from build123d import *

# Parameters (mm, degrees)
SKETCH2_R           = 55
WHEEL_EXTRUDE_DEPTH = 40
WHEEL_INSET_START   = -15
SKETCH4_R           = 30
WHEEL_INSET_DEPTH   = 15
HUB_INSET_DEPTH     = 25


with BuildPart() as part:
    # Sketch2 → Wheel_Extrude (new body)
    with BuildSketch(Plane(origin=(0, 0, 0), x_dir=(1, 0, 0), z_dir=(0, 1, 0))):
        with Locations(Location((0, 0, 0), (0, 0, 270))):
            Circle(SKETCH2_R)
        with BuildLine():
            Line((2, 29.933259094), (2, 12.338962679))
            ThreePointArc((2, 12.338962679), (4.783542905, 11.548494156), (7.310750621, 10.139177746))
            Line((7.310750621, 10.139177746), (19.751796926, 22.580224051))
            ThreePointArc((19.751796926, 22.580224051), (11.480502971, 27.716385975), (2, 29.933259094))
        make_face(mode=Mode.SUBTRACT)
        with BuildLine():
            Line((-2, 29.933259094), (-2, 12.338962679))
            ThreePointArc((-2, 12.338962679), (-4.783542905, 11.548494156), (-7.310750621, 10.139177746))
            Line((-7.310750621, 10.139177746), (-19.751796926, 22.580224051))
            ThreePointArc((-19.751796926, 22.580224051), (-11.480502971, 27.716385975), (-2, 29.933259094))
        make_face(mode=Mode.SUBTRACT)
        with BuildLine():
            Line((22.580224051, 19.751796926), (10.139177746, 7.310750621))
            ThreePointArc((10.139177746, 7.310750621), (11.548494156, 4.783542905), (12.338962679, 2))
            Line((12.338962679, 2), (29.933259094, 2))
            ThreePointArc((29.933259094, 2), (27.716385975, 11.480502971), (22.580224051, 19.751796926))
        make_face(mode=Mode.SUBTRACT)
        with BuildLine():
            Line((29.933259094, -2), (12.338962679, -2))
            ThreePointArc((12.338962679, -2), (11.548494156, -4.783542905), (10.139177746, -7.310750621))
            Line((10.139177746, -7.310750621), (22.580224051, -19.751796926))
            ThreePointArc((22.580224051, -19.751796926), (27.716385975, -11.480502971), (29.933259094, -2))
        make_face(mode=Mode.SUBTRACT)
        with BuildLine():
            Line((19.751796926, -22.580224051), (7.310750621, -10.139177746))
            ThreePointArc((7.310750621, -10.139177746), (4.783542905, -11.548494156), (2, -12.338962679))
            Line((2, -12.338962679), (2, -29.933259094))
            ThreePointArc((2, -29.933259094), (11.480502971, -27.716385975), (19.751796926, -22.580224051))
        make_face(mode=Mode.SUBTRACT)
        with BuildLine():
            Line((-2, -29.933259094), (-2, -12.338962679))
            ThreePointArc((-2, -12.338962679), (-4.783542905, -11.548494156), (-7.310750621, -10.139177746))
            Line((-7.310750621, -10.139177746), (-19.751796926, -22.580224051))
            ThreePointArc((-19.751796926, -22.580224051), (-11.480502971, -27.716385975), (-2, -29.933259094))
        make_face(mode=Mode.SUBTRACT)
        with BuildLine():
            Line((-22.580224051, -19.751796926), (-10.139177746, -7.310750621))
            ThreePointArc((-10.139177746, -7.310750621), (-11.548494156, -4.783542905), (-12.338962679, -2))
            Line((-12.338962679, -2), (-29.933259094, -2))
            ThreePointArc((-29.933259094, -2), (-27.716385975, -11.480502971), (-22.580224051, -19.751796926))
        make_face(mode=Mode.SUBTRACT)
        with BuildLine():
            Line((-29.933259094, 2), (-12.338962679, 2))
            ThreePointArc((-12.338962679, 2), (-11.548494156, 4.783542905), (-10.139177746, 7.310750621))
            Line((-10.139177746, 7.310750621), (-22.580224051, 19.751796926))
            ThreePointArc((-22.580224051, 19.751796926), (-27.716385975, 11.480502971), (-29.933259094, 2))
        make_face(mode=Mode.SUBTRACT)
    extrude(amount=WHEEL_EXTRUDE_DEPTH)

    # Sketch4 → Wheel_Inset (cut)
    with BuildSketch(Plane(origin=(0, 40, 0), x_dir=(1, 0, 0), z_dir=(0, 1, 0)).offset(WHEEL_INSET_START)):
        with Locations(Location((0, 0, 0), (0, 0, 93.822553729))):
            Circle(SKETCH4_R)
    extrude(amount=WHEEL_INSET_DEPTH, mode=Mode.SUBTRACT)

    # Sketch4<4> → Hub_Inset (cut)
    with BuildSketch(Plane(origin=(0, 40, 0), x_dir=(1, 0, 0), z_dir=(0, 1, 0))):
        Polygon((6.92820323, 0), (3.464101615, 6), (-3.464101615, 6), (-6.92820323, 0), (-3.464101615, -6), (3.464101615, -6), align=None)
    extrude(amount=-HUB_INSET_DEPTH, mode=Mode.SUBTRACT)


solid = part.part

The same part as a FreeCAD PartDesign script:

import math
import FreeCAD as App
import Part
import Sketcher

V = App.Vector
Q = App.Units.Quantity

doc = App.newDocument("Part")
body = doc.addObject("PartDesign::Body", "Body")

sketch1 = body.newObject("Sketcher::SketchObject", "Sketch")
sketch1.AttachmentSupport = (doc.getObject("XZ_Plane"), [""])
sketch1.MapMode = "FlatFace"
sketch1.addGeometry([
    Part.Circle(V(0, 0, 0), V(0, 0, 1), 55),
    Part.LineSegment(V(-12.338963, -2, 0), V(-29.933259, -2, 0)),
    Part.ArcOfCircle(Part.Circle(V(0, 0, 0), V(0, 0, 1), 30), math.radians(-176.177446), math.radians(-138.822554)),
    Part.LineSegment(V(-22.580224, -19.751797, 0), V(-10.139178, -7.310751, 0)),
    Part.ArcOfCircle(Part.Circle(V(0, 0, 0), V(0, 0, 1), 12.5), math.radians(-170.793104), math.radians(-144.206896)),
    Part.ArcOfCircle(Part.Circle(V(0, 0, 0), V(0, 0, 1), 30), math.radians(-131.177446), math.radians(-93.822554)),
    Part.LineSegment(V(-2, -29.933259, 0), V(-2, -12.338963, 0)),
    Part.ArcOfCircle(Part.Circle(V(0, 0, 0), V(0, 0, 1), 12.5), math.radians(-125.793104), math.radians(-99.206896)),
    Part.LineSegment(V(-7.310751, -10.139178, 0), V(-19.751797, -22.580224, 0)),
    Part.LineSegment(V(-10.139178, 7.310751, 0), V(-22.580224, 19.751797, 0)),
    Part.ArcOfCircle(Part.Circle(V(0, 0, 0), V(0, 0, 1), 30), math.radians(138.822554), math.radians(176.177446)),
    Part.LineSegment(V(-29.933259, 2, 0), V(-12.338963, 2, 0)),
    Part.ArcOfCircle(Part.Circle(V(0, 0, 0), V(0, 0, 1), 12.5), math.radians(144.206896), math.radians(170.793104)),
    Part.LineSegment(V(-2, 12.338963, 0), V(-2, 29.933259, 0)),
    Part.ArcOfCircle(Part.Circle(V(0, 0, 0), V(0, 0, 1), 30), math.radians(93.822554), math.radians(131.177446)),
    Part.LineSegment(V(-19.751797, 22.580224, 0), V(-7.310751, 10.139178, 0)),
    Part.ArcOfCircle(Part.Circle(V(0, 0, 0), V(0, 0, 1), 12.5), math.radians(99.206896), math.radians(125.793104)),
    Part.LineSegment(V(2, -12.338963, 0), V(2, -29.933259, 0)),
    Part.ArcOfCircle(Part.Circle(V(0, 0, 0), V(0, 0, 1), 30), math.radians(-86.177446), math.radians(-48.822554)),
    Part.LineSegment(V(19.751797, -22.580224, 0), V(7.310751, -10.139178, 0)),
    Part.ArcOfCircle(Part.Circle(V(0, 0, 0), V(0, 0, 1), 12.5), math.radians(-80.793104), math.radians(-54.206896)),
    Part.LineSegment(V(10.139178, -7.310751, 0), V(22.580224, -19.751797, 0)),
    Part.ArcOfCircle(Part.Circle(V(0, 0, 0), V(0, 0, 1), 30), math.radians(-41.177446), math.radians(-3.822554)),
    Part.LineSegment(V(29.933259, -2, 0), V(12.338963, -2, 0)),
    Part.ArcOfCircle(Part.Circle(V(0, 0, 0), V(0, 0, 1), 12.5), math.radians(-35.793104), math.radians(-9.206896)),
    Part.LineSegment(V(7.310751, 10.139178, 0), V(19.751797, 22.580224, 0)),
    Part.ArcOfCircle(Part.Circle(V(0, 0, 0), V(0, 0, 1), 30), math.radians(48.822554), math.radians(86.177446)),
    Part.LineSegment(V(2, 29.933259, 0), V(2, 12.338963, 0)),
    Part.ArcOfCircle(Part.Circle(V(0, 0, 0), V(0, 0, 1), 12.5), math.radians(54.206896), math.radians(80.793104)),
    Part.LineSegment(V(12.338963, 2, 0), V(29.933259, 2, 0)),
    Part.ArcOfCircle(Part.Circle(V(0, 0, 0), V(0, 0, 1), 30), math.radians(3.822554), math.radians(41.177446)),
    Part.LineSegment(V(22.580224, 19.751797, 0), V(10.139178, 7.310751, 0)),
    Part.ArcOfCircle(Part.Circle(V(0, 0, 0), V(0, 0, 1), 12.5), math.radians(9.206896), math.radians(35.793104)),
], False)
sketch1.addConstraint([
    Sketcher.Constraint("Coincident", 1, 2, 2, 1),
    Sketcher.Constraint("Coincident", 2, 2, 3, 1),
    Sketcher.Constraint("Coincident", 3, 2, 4, 2),
    Sketcher.Constraint("Coincident", 4, 1, 1, 1),
    Sketcher.Constraint("Coincident", 5, 2, 6, 1),
    Sketcher.Constraint("Coincident", 6, 2, 7, 2),
    Sketcher.Constraint("Coincident", 7, 1, 8, 1),
    Sketcher.Constraint("Coincident", 8, 2, 5, 1),
    Sketcher.Constraint("Coincident", 9, 2, 10, 1),
    Sketcher.Constraint("Coincident", 10, 2, 11, 1),
    Sketcher.Constraint("Coincident", 11, 2, 12, 2),
    Sketcher.Constraint("Coincident", 12, 1, 9, 1),
    Sketcher.Constraint("Coincident", 13, 2, 14, 1),
    Sketcher.Constraint("Coincident", 14, 2, 15, 1),
    Sketcher.Constraint("Coincident", 15, 2, 16, 2),
    Sketcher.Constraint("Coincident", 16, 1, 13, 1),
    Sketcher.Constraint("Coincident", 17, 2, 18, 1),
    Sketcher.Constraint("Coincident", 18, 2, 19, 1),
    Sketcher.Constraint("Coincident", 19, 2, 20, 2),
    Sketcher.Constraint("Coincident", 20, 1, 17, 1),
    Sketcher.Constraint("Coincident", 21, 2, 22, 1),
    Sketcher.Constraint("Coincident", 22, 2, 23, 1),
    Sketcher.Constraint("Coincident", 23, 2, 24, 2),
    Sketcher.Constraint("Coincident", 24, 1, 21, 1),
    Sketcher.Constraint("Coincident", 25, 2, 26, 1),
    Sketcher.Constraint("Coincident", 26, 2, 27, 1),
    Sketcher.Constraint("Coincident", 27, 2, 28, 2),
    Sketcher.Constraint("Coincident", 28, 1, 25, 1),
    Sketcher.Constraint("Coincident", 29, 2, 30, 1),
    Sketcher.Constraint("Coincident", 30, 2, 31, 1),
    Sketcher.Constraint("Coincident", 31, 2, 32, 2),
    Sketcher.Constraint("Coincident", 32, 1, 29, 1),
    Sketcher.Constraint("Horizontal", 1),
    Sketcher.Constraint("Vertical", 6),
    Sketcher.Constraint("Horizontal", 11),
    Sketcher.Constraint("Vertical", 13),
    Sketcher.Constraint("Vertical", 17),
    Sketcher.Constraint("Horizontal", 23),
    Sketcher.Constraint("Vertical", 27),
    Sketcher.Constraint("Horizontal", 29),
    Sketcher.Constraint("Coincident", 0, 3, -1, 1),
    Sketcher.Constraint("Coincident", 2, 3, -1, 1),
    Sketcher.Constraint("Coincident", 4, 3, -1, 1),
    Sketcher.Constraint("Coincident", 5, 3, -1, 1),
    Sketcher.Constraint("Coincident", 7, 3, -1, 1),
    Sketcher.Constraint("Coincident", 10, 3, -1, 1),
    Sketcher.Constraint("Coincident", 12, 3, -1, 1),
    Sketcher.Constraint("Coincident", 14, 3, -1, 1),
    Sketcher.Constraint("Coincident", 16, 3, -1, 1),
    Sketcher.Constraint("Coincident", 18, 3, -1, 1),
    Sketcher.Constraint("Coincident", 20, 3, -1, 1),
    Sketcher.Constraint("Coincident", 22, 3, -1, 1),
    Sketcher.Constraint("Coincident", 24, 3, -1, 1),
    Sketcher.Constraint("Coincident", 26, 3, -1, 1),
    Sketcher.Constraint("Coincident", 28, 3, -1, 1),
    Sketcher.Constraint("Coincident", 30, 3, -1, 1),
    Sketcher.Constraint("Coincident", 32, 3, -1, 1),
    Sketcher.Constraint("Equal", 2, 5),
    Sketcher.Constraint("Equal", 4, 7),
    Sketcher.Constraint("Equal", 5, 10),
    Sketcher.Constraint("Equal", 7, 12),
    Sketcher.Constraint("Equal", 10, 14),
    Sketcher.Constraint("Equal", 12, 16),
    Sketcher.Constraint("Equal", 14, 18),
    Sketcher.Constraint("Equal", 16, 20),
    Sketcher.Constraint("Equal", 18, 22),
    Sketcher.Constraint("Equal", 20, 24),
    Sketcher.Constraint("Equal", 22, 26),
    Sketcher.Constraint("Equal", 24, 28),
    Sketcher.Constraint("Equal", 26, 30),
    Sketcher.Constraint("Equal", 28, 32),
    Sketcher.Constraint("Parallel", 3, 8),
    Sketcher.Constraint("Perpendicular", 8, 9),
    Sketcher.Constraint("Parallel", 9, 15),
    Sketcher.Constraint("Parallel", 15, 19),
    Sketcher.Constraint("Parallel", 19, 21),
    Sketcher.Constraint("Perpendicular", 21, 25),
    Sketcher.Constraint("Parallel", 25, 31),
    Sketcher.Constraint("Horizontal", 5, 2, 17, 2),
    Sketcher.Constraint("Horizontal", 8, 2, 18, 2),
    Sketcher.Constraint("Horizontal", 7, 1, 19, 2),
    Sketcher.Constraint("Horizontal", 2, 2, 21, 2),
    Sketcher.Constraint("Horizontal", 4, 1, 22, 2),
    Sketcher.Constraint("Horizontal", 14, 2, 25, 2),
    Sketcher.Constraint("Horizontal", 13, 2, 26, 2),
    Sketcher.Constraint("Horizontal", 11, 2, 29, 2),
    Sketcher.Constraint("Horizontal", 9, 2, 30, 2),
    Sketcher.Constraint("Vertical", 2, 2, 9, 2),
    Sketcher.Constraint("Vertical", 1, 2, 10, 2),
    Sketcher.Constraint("Vertical", 6, 2, 13, 2),
    Sketcher.Constraint("Vertical", 8, 2, 14, 2),
    Sketcher.Constraint("Equal", 29, 6),
    Sketcher.Constraint("Equal", 3, 8),
    Sketcher.Constraint("Diameter", 0, 110.0),
    Sketcher.Constraint("Radius", 2, 30.0),
    Sketcher.Constraint("Radius", 4, 12.5),
    Sketcher.Constraint("DistanceY", 1, 2, -1, 1, 2.0),
    Sketcher.Constraint("DistanceY", 3, 2, -1, 1, 7.310751),
])
pad1 = body.newObject("PartDesign::Pad", "Pad")
pad1.Profile = sketch1
pad1.Length = 40
pad1.Reversed = True

sketch2 = body.newObject("Sketcher::SketchObject", "Sketch001")
sketch2.AttachmentSupport = (doc.getObject("XZ_Plane"), [""])
sketch2.MapMode = "FlatFace"
sketch2.AttachmentOffset = App.Placement(V(0, 0, -25), App.Rotation())
sketch2.addGeometry(Part.Circle(V(0, 0, 0), V(0, 0, 1), 30), False)
sketch2.addConstraint([
    Sketcher.Constraint("Coincident", 0, 3, -1, 1),
    Sketcher.Constraint("Diameter", 0, 60.0),
])
pocket1 = body.newObject("PartDesign::Pocket", "Pocket")
pocket1.Profile = sketch2
pocket1.Length = 15

sketch3 = body.newObject("Sketcher::SketchObject", "Sketch002")
sketch3.AttachmentSupport = (doc.getObject("XZ_Plane"), [""])
sketch3.MapMode = "FlatFace"
sketch3.AttachmentOffset = App.Placement(V(0, 0, -40), App.Rotation())
sketch3.addGeometry([
    Part.LineSegment(V(6.928203, 0, 0), V(3.464102, -6, 0)),
    Part.LineSegment(V(3.464102, -6, 0), V(-3.464102, -6, 0)),
    Part.LineSegment(V(-3.464102, -6, 0), V(-6.928203, 0, 0)),
    Part.LineSegment(V(-6.928203, 0, 0), V(-3.464102, 6, 0)),
    Part.LineSegment(V(-3.464102, 6, 0), V(3.464102, 6, 0)),
    Part.LineSegment(V(3.464102, 6, 0), V(6.928203, 0, 0)),
], False)
sketch3.addConstraint([
    Sketcher.Constraint("Coincident", 0, 2, 1, 1),
    Sketcher.Constraint("Coincident", 1, 2, 2, 1),
    Sketcher.Constraint("Coincident", 2, 2, 3, 1),
    Sketcher.Constraint("Coincident", 3, 2, 4, 1),
    Sketcher.Constraint("Coincident", 4, 2, 5, 1),
    Sketcher.Constraint("Coincident", 5, 2, 0, 1),
    Sketcher.Constraint("Horizontal", 1),
    Sketcher.Constraint("Horizontal", 4),
    Sketcher.Constraint("Symmetric", 0, 2, 3, 2, -1, 1),
    Sketcher.Constraint("Symmetric", 2, 2, 5, 2, -1, 1),
    Sketcher.Constraint("PointOnObject", 2, 2, -1),
    Sketcher.Constraint("Parallel", 2, 5),
    Sketcher.Constraint("Vertical", 1, 2, 3, 2),
    Sketcher.Constraint("Angle", 0, Q("-120 deg")),
    Sketcher.Constraint("DistanceY", 0, 2, -1, 1, 6.0),
    Sketcher.Constraint("DistanceX", -1, 1, 0, 2, 3.464102),
])
pocket2 = body.newObject("PartDesign::Pocket", "Pocket001")
pocket2.Profile = sketch3
pocket2.Length = 25
pocket2.Reversed = True

doc.recompute()
